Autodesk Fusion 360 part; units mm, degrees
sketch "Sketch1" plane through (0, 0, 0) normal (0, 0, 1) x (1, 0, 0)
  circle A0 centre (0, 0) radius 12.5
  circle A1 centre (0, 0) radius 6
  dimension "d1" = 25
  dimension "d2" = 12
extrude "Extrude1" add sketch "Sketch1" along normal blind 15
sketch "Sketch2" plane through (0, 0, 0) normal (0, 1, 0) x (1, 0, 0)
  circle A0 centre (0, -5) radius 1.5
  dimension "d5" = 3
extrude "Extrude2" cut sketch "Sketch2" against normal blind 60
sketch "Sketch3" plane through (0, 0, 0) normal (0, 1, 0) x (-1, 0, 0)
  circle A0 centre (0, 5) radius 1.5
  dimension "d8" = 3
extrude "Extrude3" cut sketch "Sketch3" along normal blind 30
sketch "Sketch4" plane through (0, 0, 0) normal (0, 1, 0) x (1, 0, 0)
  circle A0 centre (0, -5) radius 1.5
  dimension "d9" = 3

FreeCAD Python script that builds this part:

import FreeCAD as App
import Part
import Sketcher
from FreeCAD import Vector
Q = App.Units.Quantity

doc = App.newDocument("Part")
body = doc.addObject("PartDesign::Body", "Body")

sketch1 = body.newObject("Sketcher::SketchObject", "Sketch")
sketch1.AttachmentSupport = (doc.getObject("XY_Plane"), [""])
sketch1.MapMode = "FlatFace"
sketch1.addGeometry([
    Part.Circle(Vector(0, 0, 0), Vector(0, 0, 1), 12.5),
    Part.Circle(Vector(0, 0, 0), Vector(0, 0, 1), 6),
], False)
sketch1.addConstraint([
    Sketcher.Constraint("Coincident", 0, 3, -1, 1),
    Sketcher.Constraint("Coincident", 1, 3, -1, 1),
    Sketcher.Constraint("Diameter", 0, Q("25 mm")),
    Sketcher.Constraint("Diameter", 1, Q("12 mm")),
])
pad1 = body.newObject("PartDesign::Pad", "Pad")
pad1.Profile = sketch1
pad1.Length = 15

sketch2 = body.newObject("Sketcher::SketchObject", "Sketch001")
sketch2.AttachmentSupport = (doc.getObject("XZ_Plane"), [""])
sketch2.MapMode = "FlatFace"
sketch2.addGeometry(Part.Circle(Vector(0, 5, 0), Vector(0, 0, 1), 1.5), False)
sketch2.addConstraint([
    Sketcher.Constraint("PointOnObject", 0, 3, -2),
    Sketcher.Constraint("Diameter", 0, Q("3 mm")),
    Sketcher.Constraint("DistanceY", -1, 1, 0, 3, Q("5 mm")),
])
pocket1 = body.newObject("PartDesign::Pocket", "Pocket")
pocket1.Profile = sketch2
pocket1.Length = 60
pocket1.Reversed = True

sketch3 = body.newObject("Sketcher::SketchObject", "Sketch002")
sketch3.AttachmentSupport = (doc.getObject("XZ_Plane"), [""])
sketch3.MapMode = "FlatFace"
sketch3.addGeometry(Part.Circle(Vector(0, 5, 0), Vector(0, 0, 1), 1.5), False)
sketch3.addConstraint([
    Sketcher.Constraint("PointOnObject", 0, 3, -2),
    Sketcher.Constraint("Diameter", 0, Q("3 mm")),
    Sketcher.Constraint("DistanceY", -1, 1, 0, 3, Q("5 mm")),
])
pocket2 = body.newObject("PartDesign::Pocket", "Pocket001")
pocket2.Profile = sketch3
pocket2.Length = 30

doc.recompute()
